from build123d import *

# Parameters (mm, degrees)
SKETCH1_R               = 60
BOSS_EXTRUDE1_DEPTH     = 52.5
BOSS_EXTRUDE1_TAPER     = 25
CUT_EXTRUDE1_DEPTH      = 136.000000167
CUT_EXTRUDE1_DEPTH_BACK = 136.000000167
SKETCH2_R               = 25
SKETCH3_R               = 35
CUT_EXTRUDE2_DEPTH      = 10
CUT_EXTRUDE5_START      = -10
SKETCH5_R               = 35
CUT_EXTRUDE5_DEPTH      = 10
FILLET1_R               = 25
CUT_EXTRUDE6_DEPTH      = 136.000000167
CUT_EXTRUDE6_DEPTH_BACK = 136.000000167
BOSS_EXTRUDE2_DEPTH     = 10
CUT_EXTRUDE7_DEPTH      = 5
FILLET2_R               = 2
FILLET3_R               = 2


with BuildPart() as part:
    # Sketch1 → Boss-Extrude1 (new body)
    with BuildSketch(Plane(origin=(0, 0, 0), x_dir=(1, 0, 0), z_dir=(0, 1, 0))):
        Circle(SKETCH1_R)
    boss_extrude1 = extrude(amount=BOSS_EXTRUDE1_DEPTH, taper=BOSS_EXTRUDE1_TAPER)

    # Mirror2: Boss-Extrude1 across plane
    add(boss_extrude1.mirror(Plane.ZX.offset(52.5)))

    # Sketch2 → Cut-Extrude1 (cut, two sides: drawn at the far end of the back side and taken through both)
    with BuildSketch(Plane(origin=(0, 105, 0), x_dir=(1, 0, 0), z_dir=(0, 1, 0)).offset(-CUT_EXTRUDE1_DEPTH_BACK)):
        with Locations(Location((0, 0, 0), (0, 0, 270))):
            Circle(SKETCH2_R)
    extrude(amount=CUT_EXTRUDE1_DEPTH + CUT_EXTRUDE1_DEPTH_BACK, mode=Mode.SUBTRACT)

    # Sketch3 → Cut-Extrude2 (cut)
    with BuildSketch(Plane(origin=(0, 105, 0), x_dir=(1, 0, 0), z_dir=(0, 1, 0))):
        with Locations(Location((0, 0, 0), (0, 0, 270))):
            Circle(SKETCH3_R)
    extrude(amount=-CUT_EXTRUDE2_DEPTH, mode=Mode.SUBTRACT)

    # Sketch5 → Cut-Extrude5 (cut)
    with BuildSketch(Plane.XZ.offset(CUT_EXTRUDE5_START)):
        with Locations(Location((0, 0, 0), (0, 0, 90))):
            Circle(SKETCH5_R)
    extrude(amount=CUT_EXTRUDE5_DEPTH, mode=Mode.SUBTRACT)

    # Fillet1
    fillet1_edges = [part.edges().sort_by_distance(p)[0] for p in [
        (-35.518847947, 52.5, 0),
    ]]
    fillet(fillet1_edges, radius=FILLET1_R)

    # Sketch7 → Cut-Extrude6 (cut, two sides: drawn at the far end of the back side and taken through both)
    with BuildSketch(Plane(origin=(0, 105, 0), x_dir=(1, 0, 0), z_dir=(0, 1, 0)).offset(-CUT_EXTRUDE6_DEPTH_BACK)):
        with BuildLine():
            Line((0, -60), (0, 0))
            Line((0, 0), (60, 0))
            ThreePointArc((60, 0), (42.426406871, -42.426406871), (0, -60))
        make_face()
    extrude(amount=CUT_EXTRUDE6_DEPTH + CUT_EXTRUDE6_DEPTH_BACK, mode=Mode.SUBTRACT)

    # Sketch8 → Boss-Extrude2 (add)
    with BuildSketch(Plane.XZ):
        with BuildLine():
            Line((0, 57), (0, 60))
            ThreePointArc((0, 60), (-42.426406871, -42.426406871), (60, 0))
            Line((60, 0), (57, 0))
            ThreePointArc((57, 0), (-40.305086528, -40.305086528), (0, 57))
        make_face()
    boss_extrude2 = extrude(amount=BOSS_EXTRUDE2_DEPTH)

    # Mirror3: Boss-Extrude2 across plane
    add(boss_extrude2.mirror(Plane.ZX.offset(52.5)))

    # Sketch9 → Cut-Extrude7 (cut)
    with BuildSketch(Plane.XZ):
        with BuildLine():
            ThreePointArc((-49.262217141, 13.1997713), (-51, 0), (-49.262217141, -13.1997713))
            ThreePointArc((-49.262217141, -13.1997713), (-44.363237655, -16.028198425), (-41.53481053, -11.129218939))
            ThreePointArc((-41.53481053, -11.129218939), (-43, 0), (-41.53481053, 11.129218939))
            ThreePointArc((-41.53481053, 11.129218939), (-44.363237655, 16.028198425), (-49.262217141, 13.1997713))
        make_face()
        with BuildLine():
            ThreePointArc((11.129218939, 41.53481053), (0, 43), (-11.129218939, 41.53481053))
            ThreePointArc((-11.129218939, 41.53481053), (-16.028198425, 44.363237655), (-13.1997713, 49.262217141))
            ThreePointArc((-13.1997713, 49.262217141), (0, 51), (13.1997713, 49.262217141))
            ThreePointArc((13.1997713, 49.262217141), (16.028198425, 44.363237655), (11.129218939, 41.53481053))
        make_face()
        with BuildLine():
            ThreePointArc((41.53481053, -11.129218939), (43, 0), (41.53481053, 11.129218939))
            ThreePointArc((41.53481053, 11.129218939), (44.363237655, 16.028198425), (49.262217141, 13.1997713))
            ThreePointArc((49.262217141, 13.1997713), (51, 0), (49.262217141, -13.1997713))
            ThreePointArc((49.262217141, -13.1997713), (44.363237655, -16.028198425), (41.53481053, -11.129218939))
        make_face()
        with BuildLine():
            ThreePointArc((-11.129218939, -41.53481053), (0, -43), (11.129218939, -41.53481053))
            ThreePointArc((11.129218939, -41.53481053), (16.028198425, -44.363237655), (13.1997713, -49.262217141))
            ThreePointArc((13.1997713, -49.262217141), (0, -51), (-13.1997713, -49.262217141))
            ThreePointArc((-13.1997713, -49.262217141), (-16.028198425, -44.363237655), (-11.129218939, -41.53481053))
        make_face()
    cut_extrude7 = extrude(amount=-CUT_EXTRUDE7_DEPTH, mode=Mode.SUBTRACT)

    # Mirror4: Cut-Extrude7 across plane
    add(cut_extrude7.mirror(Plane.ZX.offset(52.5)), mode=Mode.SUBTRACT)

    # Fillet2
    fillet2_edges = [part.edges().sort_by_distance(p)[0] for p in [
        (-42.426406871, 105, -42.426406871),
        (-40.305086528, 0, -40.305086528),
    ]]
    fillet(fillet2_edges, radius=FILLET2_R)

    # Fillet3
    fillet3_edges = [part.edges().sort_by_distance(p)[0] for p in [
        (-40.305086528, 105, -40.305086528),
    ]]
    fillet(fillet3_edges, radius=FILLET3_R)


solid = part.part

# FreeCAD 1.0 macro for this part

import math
import FreeCAD as App
import Part
import Sketcher
Q = App.Units.Quantity


def edges_at(feature, points):
    """Names of the edges that pass closest to the given points."""
    edges = feature.Shape.Edges
    near = lambda p: min(range(len(edges)), key=lambda i: edges[i].distToShape(Part.Vertex(*p))[0])
    return sorted({f"Edge{near(p) + 1}" for p in points})

doc = App.newDocument("Part")
body = doc.addObject("PartDesign::Body", "Body")

# Sketch on XZ plane
sketch1 = body.newObject("Sketcher::SketchObject", "Sketch")
sketch1.AttachmentSupport = (doc.getObject("XZ_Plane"), [""])
sketch1.MapMode = "FlatFace"
sketch1.addGeometry(Part.Circle(App.Vector(0, 0, 0), App.Vector(0, 0, 1), 60), False)
sketch1.addConstraint([
    Sketcher.Constraint("Coincident", 0, 3, -1, 1),
    Sketcher.Constraint("Diameter", 0, Q("120 mm")),
])
pad1 = body.newObject("PartDesign::Pad", "Pad")
pad1.Profile = sketch1
pad1.Length = 52.5
pad1.Reversed = True
pad1.TaperAngle = -25
doc.recompute()

datumplane = body.newObject("PartDesign::Plane", "DatumPlane")
datumplane.AttachmentSupport = (doc.getObject("XZ_Plane"), [""])
datumplane.MapMode = "FlatFace"
datumplane.AttachmentOffset = App.Placement(App.Vector(0, 0, -52.5), App.Rotation())
mirrored = body.newObject("PartDesign::Mirrored", "Mirrored")
mirrored.Originals = [pad1]
mirrored.MirrorPlane = (datumplane, [""])
body.Tip = mirrored

# Sketch on XZ plane
sketch2 = body.newObject("Sketcher::SketchObject", "Sketch001")
sketch2.AttachmentSupport = (doc.getObject("XZ_Plane"), [""])
sketch2.MapMode = "FlatFace"
sketch2.AttachmentOffset = App.Placement(App.Vector(0, 0, -105), App.Rotation())
sketch2.addGeometry(Part.Circle(App.Vector(0, 0, 0), App.Vector(0, 0, 1), 25), False)
sketch2.addConstraint([
    Sketcher.Constraint("Coincident", 0, 3, -1, 1),
    Sketcher.Constraint("Diameter", 0, Q("50 mm")),
])
pocket1 = body.newObject("PartDesign::Pocket", "Pocket")
pocket1.Profile = sketch2
pocket1.Type = "ThroughAll"
pocket1.Midplane = True

# Sketch on XZ plane
sketch3 = body.newObject("Sketcher::SketchObject", "Sketch002")
sketch3.AttachmentSupport = (doc.getObject("XZ_Plane"), [""])
sketch3.MapMode = "FlatFace"
sketch3.AttachmentOffset = App.Placement(App.Vector(0, 0, -105), App.Rotation())
sketch3.addGeometry(Part.Circle(App.Vector(0, 0, 0), App.Vector(0, 0, 1), 35), False)
sketch3.addConstraint([
    Sketcher.Constraint("Coincident", 0, 3, -1, 1),
    Sketcher.Constraint("Diameter", 0, Q("70 mm")),
])
pocket2 = body.newObject("PartDesign::Pocket", "Pocket001")
pocket2.Profile = sketch3
pocket2.Length = 10
pocket2.Reversed = True

# Sketch on XZ plane
sketch4 = body.newObject("Sketcher::SketchObject", "Sketch003")
sketch4.AttachmentSupport = (doc.getObject("XZ_Plane"), [""])
sketch4.MapMode = "FlatFace"
sketch4.AttachmentOffset = App.Placement(App.Vector(0, 0, -10), App.Rotation())
sketch4.addGeometry(Part.Circle(App.Vector(0, 0, 0), App.Vector(0, 0, 1), 35), False)
sketch4.addConstraint([
    Sketcher.Constraint("Coincident", 0, 3, -1, 1),
    Sketcher.Constraint("Diameter", 0, Q("70 mm")),
])
pocket3 = body.newObject("PartDesign::Pocket", "Pocket002")
pocket3.Profile = sketch4
pocket3.Length = 10
pocket3.Reversed = True
doc.recompute()

fillet = body.newObject("PartDesign::Fillet", "Fillet")
fillet.Base = (pocket3, edges_at(pocket3, [(-35.519, 52.5, 0)]))
fillet.Radius = 25

# Sketch on XZ plane
sketch5 = body.newObject("Sketcher::SketchObject", "Sketch004")
sketch5.AttachmentSupport = (doc.getObject("XZ_Plane"), [""])
sketch5.MapMode = "FlatFace"
sketch5.AttachmentOffset = App.Placement(App.Vector(0, 0, -105), App.Rotation())
sketch5.addGeometry([
    Part.LineSegment(App.Vector(0, 0, 0), App.Vector(0, 60, 0)),
    Part.ArcOfCircle(Part.Circle(App.Vector(0, 0, 0), App.Vector(0, 0, 1), 60), math.radians(0), math.radians(90)),
    Part.LineSegment(App.Vector(60, 0, 0), App.Vector(0, 0, 0)),
], False)
sketch5.addConstraint([
    Sketcher.Constraint("Coincident", 0, 2, 1, 2),
    Sketcher.Constraint("Coincident", 1, 1, 2, 1),
    Sketcher.Constraint("Coincident", 2, 2, 0, 1),
    Sketcher.Constraint("Vertical", 0),
    Sketcher.Constraint("Horizontal", 2),
    Sketcher.Constraint("Coincident", 1, 3, -1, 1),
    Sketcher.Constraint("Coincident", 2, 2, -1, 1),
    Sketcher.Constraint("Radius", 1, Q("60 mm")),
])
pocket4 = body.newObject("PartDesign::Pocket", "Pocket003")
pocket4.Profile = sketch5
pocket4.Type = "ThroughAll"
pocket4.Midplane = True

# Sketch on XZ plane
sketch6 = body.newObject("Sketcher::SketchObject", "Sketch005")
sketch6.AttachmentSupport = (doc.getObject("XZ_Plane"), [""])
sketch6.MapMode = "FlatFace"
sketch6.addGeometry([
    Part.LineSegment(App.Vector(0, 57, 0), App.Vector(0, 60, 0)),
    Part.ArcOfCircle(Part.Circle(App.Vector(0, 0, 0), App.Vector(0, 0, 1), 60), math.radians(90), math.radians(360)),
    Part.LineSegment(App.Vector(60, 0, 0), App.Vector(57, 0, 0)),
    Part.ArcOfCircle(Part.Circle(App.Vector(0, 0, 0), App.Vector(0, 0, 1), 57), math.radians(90), math.radians(360)),
], False)
sketch6.addConstraint([
    Sketcher.Constraint("Coincident", 0, 2, 1, 1),
    Sketcher.Constraint("Coincident", 1, 2, 2, 1),
    Sketcher.Constraint("Coincident", 2, 2, 3, 2),
    Sketcher.Constraint("Coincident", 3, 1, 0, 1),
    Sketcher.Constraint("Vertical", 0),
    Sketcher.Constraint("Horizontal", 2),
    Sketcher.Constraint("Coincident", 1, 3, -1, 1),
    Sketcher.Constraint("Coincident", 3, 3, -1, 1),
    Sketcher.Constraint("PointOnObject", 0, 2, -2),
    Sketcher.Constraint("PointOnObject", 1, 2, -1),
    Sketcher.Constraint("Radius", 1, Q("60 mm")),
    Sketcher.Constraint("Radius", 3, Q("57 mm")),
])
pad2 = body.newObject("PartDesign::Pad", "Pad001")
pad2.Profile = sketch6
pad2.Length = 10
doc.recompute()

datumplane2 = body.newObject("PartDesign::Plane", "DatumPlane001")
datumplane2.AttachmentSupport = (doc.getObject("XZ_Plane"), [""])
datumplane2.MapMode = "FlatFace"
datumplane2.AttachmentOffset = App.Placement(App.Vector(0, 0, -52.5), App.Rotation())
mirrored2 = body.newObject("PartDesign::Mirrored", "Mirrored001")
mirrored2.Originals = [pad2]
mirrored2.MirrorPlane = (datumplane2, [""])
body.Tip = mirrored2

# Sketch on XZ plane
sketch7 = body.newObject("Sketcher::SketchObject", "Sketch006")
sketch7.AttachmentSupport = (doc.getObject("XZ_Plane"), [""])
sketch7.MapMode = "FlatFace"
sketch7.addGeometry([
    Part.ArcOfCircle(Part.Circle(App.Vector(0, 0, 0), App.Vector(0, 0, 1), 51), math.radians(165), math.radians(195)),  # 0
    Part.ArcOfCircle(Part.Circle(App.Vector(-45.4, -12.2, 0), App.Vector(0, 0, 1), 4), math.radians(-165), math.radians(15)),  # 1
    Part.ArcOfCircle(Part.Circle(App.Vector(0, 0, 0), App.Vector(0, 0, 1), 43), math.radians(165), math.radians(195)),  # 2
    Part.ArcOfCircle(Part.Circle(App.Vector(-45.4, 12.2, 0), App.Vector(0, 0, 1), 4), math.radians(-15), math.radians(165)),  # 3
    Part.ArcOfCircle(Part.Circle(App.Vector(0, 0, 0), App.Vector(0, 0, 1), 43), math.radians(75), math.radians(105)),  # 4
    Part.ArcOfCircle(Part.Circle(App.Vector(12.2, 45.4, 0), App.Vector(0, 0, 1), 4), math.radians(-105), math.radians(75)),  # 5
    Part.ArcOfCircle(Part.Circle(App.Vector(0, 0, 0), App.Vector(0, 0, 1), 51), math.radians(75), math.radians(105)),  # 6
    Part.ArcOfCircle(Part.Circle(App.Vector(-12.2, 45.4, 0), App.Vector(0, 0, 1), 4), math.radians(105), math.radians(285)),  # 7
    Part.ArcOfCircle(Part.Circle(App.Vector(0, 0, 0), App.Vector(0, 0, 1), 43), math.radians(-15), math.radians(15)),  # 8
    Part.ArcOfCircle(Part.Circle(App.Vector(45.4, -12.2, 0), App.Vector(0, 0, 1), 4), math.radians(165), math.radians(345)),  # 9
    Part.ArcOfCircle(Part.Circle(App.Vector(0, 0, 0), App.Vector(0, 0, 1), 51), math.radians(-15), math.radians(15)),  # 10
    Part.ArcOfCircle(Part.Circle(App.Vector(45.4, 12.2, 0), App.Vector(0, 0, 1), 4), math.radians(15), math.radians(195)),  # 11
    Part.ArcOfCircle(Part.Circle(App.Vector(0, 0, 0), App.Vector(0, 0, 1), 43), math.radians(-105), math.radians(-75)),  # 12
    Part.ArcOfCircle(Part.Circle(App.Vector(-12.2, -45.4, 0), App.Vector(0, 0, 1), 4), math.radians(75), math.radians(255)),  # 13
    Part.ArcOfCircle(Part.Circle(App.Vector(0, 0, 0), App.Vector(0, 0, 1), 51), math.radians(-105), math.radians(-75)),  # 14
    Part.ArcOfCircle(Part.Circle(App.Vector(12.2, -45.4, 0), App.Vector(0, 0, 1), 4), math.radians(-75), math.radians(105)),  # 15
], False)
sketch7.addConstraint([
    Sketcher.Constraint("Tangent", 0, 2, 1, 1),
    Sketcher.Constraint("Tangent", 1, 2, 2, 2),
    Sketcher.Constraint("Tangent", 2, 1, 3, 1),
    Sketcher.Constraint("Tangent", 3, 2, 0, 1),
    Sketcher.Constraint("Tangent", 4, 1, 5, 1),
    Sketcher.Constraint("Tangent", 5, 2, 6, 1),
    Sketcher.Constraint("Tangent", 6, 2, 7, 1),
    Sketcher.Constraint("Tangent", 7, 2, 4, 2),
    Sketcher.Constraint("Tangent", 8, 1, 9, 1),
    Sketcher.Constraint("Tangent", 9, 2, 10, 1),
    Sketcher.Constraint("Tangent", 10, 2, 11, 1),
    Sketcher.Constraint("Tangent", 11, 2, 8, 2),
    Sketcher.Constraint("Tangent", 12, 1, 13, 1),
    Sketcher.Constraint("Tangent", 13, 2, 14, 1),
    Sketcher.Constraint("Tangent", 14, 2, 15, 1),
    Sketcher.Constraint("Tangent", 15, 2, 12, 2),
    Sketcher.Constraint("Coincident", 0, 3, -1, 1),
    Sketcher.Constraint("Coincident", 2, 3, -1, 1),
    Sketcher.Constraint("Coincident", 4, 3, -1, 1),
    Sketcher.Constraint("Coincident", 6, 3, -1, 1),
    Sketcher.Constraint("Coincident", 8, 3, -1, 1),
    Sketcher.Constraint("Coincident", 10, 3, -1, 1),
    Sketcher.Constraint("Coincident", 12, 3, -1, 1),
    Sketcher.Constraint("Coincident", 14, 3, -1, 1),
    Sketcher.Constraint("Equal", 2, 4),
    Sketcher.Constraint("Equal", 3, 5),
    Sketcher.Constraint("Equal", 4, 8),
    Sketcher.Constraint("Equal", 7, 9),
    Sketcher.Constraint("Equal", 8, 12),
    Sketcher.Constraint("Equal", 11, 13),
    Sketcher.Constraint("Horizontal", 5, 3, 7, 3),
    Sketcher.Constraint("Horizontal", 1, 3, 9, 3),
    Sketcher.Constraint("Horizontal", 3, 3, 11, 3),
    Sketcher.Constraint("Horizontal", 13, 3, 15, 3),
    Sketcher.Constraint("Vertical", 1, 3, 3, 3),
    Sketcher.Constraint("Vertical", 7, 3, 13, 3),
    Sketcher.Constraint("Radius", 0, Q("51 mm")),
    Sketcher.Constraint("Radius", 1, Q("4 mm")),
    Sketcher.Constraint("DistanceY", 2, 1, 6, 2, Q("38.132998 mm")),
    Sketcher.Constraint("DistanceX", 4, 1, 10, 2, Q("38.132998 mm")),
])
pocket5 = body.newObject("PartDesign::Pocket", "Pocket004")
pocket5.Profile = sketch7
pocket5.Length = 5
doc.recompute()

datumplane3 = body.newObject("PartDesign::Plane", "DatumPlane002")
datumplane3.AttachmentSupport = (doc.getObject("XZ_Plane"), [""])
datumplane3.MapMode = "FlatFace"
datumplane3.AttachmentOffset = App.Placement(App.Vector(0, 0, -52.5), App.Rotation())
mirrored3 = body.newObject("PartDesign::Mirrored", "Mirrored002")
mirrored3.Originals = [pocket5]
mirrored3.MirrorPlane = (datumplane3, [""])
body.Tip = mirrored3
doc.recompute()

fillet2 = body.newObject("PartDesign::Fillet", "Fillet001")
fillet2.Base = (mirrored3, edges_at(mirrored3, [(-42.426, 105, -42.426), (-40.305, 0, -40.305)]))
fillet2.Radius = 2
doc.recompute()

fillet3 = body.newObject("PartDesign::Fillet", "Fillet002")
fillet3.Base = (fillet2, edges_at(fillet2, [(-40.305, 105, -40.305)]))
fillet3.Radius = 2

doc.recompute()
